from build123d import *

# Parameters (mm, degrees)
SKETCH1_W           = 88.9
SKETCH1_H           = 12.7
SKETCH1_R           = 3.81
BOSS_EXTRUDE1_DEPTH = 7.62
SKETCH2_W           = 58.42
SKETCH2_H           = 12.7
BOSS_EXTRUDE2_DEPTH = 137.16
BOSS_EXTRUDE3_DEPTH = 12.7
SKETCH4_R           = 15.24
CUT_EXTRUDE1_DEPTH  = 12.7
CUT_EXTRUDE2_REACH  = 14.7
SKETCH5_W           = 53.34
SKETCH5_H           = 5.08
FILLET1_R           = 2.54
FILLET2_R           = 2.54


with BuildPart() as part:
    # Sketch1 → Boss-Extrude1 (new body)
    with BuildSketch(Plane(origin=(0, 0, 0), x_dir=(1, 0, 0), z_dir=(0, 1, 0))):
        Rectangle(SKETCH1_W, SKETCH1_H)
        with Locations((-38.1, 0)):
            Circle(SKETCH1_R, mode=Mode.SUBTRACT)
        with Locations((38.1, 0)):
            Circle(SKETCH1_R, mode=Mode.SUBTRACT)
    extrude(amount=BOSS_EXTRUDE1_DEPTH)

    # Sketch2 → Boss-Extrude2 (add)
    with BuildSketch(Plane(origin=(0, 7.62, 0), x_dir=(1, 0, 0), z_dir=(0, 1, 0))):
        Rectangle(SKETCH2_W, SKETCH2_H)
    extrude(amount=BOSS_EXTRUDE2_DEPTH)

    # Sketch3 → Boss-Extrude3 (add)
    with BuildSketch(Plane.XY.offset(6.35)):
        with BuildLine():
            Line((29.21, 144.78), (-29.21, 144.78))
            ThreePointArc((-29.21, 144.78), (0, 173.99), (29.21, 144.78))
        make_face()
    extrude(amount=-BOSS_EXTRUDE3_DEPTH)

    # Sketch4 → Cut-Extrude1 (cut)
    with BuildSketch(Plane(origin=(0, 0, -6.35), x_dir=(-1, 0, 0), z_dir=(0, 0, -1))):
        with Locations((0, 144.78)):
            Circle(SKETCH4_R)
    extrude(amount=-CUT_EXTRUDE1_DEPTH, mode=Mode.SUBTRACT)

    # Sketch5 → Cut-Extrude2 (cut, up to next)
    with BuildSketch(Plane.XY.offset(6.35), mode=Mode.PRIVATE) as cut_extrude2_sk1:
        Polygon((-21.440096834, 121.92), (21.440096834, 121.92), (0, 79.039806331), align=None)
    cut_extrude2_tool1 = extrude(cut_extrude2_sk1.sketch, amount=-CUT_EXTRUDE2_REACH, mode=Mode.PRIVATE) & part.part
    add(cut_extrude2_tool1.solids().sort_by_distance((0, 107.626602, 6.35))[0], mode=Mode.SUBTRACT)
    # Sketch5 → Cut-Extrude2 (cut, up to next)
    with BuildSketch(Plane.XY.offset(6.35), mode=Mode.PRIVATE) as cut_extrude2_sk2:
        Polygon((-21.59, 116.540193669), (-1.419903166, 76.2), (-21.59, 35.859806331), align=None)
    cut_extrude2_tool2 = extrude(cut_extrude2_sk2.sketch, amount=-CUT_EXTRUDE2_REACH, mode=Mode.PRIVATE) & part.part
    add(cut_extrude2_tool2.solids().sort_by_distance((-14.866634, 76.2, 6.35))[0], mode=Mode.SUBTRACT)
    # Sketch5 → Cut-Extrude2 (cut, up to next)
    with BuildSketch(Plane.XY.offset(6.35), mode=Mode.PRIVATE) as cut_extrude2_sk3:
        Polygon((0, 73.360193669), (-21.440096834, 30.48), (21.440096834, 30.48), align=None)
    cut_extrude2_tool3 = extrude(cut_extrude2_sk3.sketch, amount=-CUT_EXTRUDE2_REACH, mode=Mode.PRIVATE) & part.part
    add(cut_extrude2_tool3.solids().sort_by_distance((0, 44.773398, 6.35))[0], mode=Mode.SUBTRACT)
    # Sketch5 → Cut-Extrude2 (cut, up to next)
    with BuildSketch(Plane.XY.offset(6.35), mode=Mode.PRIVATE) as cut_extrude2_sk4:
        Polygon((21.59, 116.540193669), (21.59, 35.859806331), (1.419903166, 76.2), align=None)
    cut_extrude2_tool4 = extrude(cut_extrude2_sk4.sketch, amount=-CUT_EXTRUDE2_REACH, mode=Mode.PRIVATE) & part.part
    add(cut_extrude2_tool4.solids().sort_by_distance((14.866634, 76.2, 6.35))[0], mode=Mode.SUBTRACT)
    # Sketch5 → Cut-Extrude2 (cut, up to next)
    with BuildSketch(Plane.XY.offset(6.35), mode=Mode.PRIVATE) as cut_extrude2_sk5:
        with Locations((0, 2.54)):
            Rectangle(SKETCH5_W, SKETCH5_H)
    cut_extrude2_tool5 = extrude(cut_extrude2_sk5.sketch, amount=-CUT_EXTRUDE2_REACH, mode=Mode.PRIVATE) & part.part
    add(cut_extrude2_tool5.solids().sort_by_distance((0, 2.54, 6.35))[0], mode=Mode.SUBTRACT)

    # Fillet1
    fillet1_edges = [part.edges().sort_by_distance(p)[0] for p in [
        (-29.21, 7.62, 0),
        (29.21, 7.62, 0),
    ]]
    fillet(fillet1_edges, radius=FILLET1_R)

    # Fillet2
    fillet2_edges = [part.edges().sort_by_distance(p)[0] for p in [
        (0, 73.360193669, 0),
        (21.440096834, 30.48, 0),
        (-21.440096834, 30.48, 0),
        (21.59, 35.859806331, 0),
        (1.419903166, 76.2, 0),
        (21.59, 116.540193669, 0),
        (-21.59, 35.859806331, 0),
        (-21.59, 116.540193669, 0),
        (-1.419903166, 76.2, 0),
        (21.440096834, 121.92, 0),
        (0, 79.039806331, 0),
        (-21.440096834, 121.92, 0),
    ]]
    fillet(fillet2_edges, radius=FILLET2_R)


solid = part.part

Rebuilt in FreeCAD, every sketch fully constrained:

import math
import FreeCAD as App
import Part
import Sketcher
Q = App.Units.Quantity


def edges_at(feature, points):
    """Names of the edges that pass closest to the given points."""
    edges = feature.Shape.Edges
    near = lambda p: min(range(len(edges)), key=lambda i: edges[i].distToShape(Part.Vertex(*p))[0])
    return sorted({f"Edge{near(p) + 1}" for p in points})

doc = App.newDocument("Part")
params = doc.addObject("Spreadsheet::Sheet", "Params")
for row, (alias, value) in enumerate([
    ("sketch1_diameter", "0.3 in"),
    ("sketch1_width", "3.5 in"),
    ("sketch1_height", "0.5 in"),
    ("pad1_length", "0.3 in"),
    ("sketch2_width", "2.3 in"),
    ("sketch2_height", "0.5 in"),
    ("pad2_length", "5.4 in"),
    ("sketch3_radius", "1.15 in"),
    ("pad3_length", "0.5 in"),
    ("sketch4_diameter", "1.2 in"),
    ("pocket1_length", "0.5 in"),
    ("sketch9_width", "2.1 in"),
    ("sketch9_height", "0.2 in"),
    ("fillet_radius", "0.1 in"),
    ("fillet2_radius", "0.1 in"),
], start=1):
    params.set(f"A{row}", alias)
    params.set(f"B{row}", "=" + value)
    params.setAlias(f"B{row}", alias)

body = doc.addObject("PartDesign::Body", "Body")

sketch1 = doc.addObject("Sketcher::SketchObject", "Sketch")
body.addObject(sketch1)
sketch1.AttachmentSupport = (doc.XZ_Plane, [""])
sketch1.MapMode = "FlatFace"
sketch1.addGeometry(Part.LineSegment(App.Vector(-44.45, -6.35, 0), App.Vector(-44.45, 6.35, 0)), False)
sketch1.addGeometry(Part.LineSegment(App.Vector(-44.45, 6.35, 0), App.Vector(44.45, 6.35, 0)), False)
sketch1.addGeometry(Part.LineSegment(App.Vector(44.45, 6.35, 0), App.Vector(44.45, -6.35, 0)), False)
sketch1.addGeometry(Part.LineSegment(App.Vector(44.45, -6.35, 0), App.Vector(-44.45, -6.35, 0)), False)
sketch1.addGeometry(Part.Circle(App.Vector(-38.1, 0, 0), App.Vector(0, 0, 1), 3.81), False)
sketch1.addGeometry(Part.Circle(App.Vector(38.1, 0, 0), App.Vector(0, 0, 1), 3.81), False)
sketch1.addConstraint(Sketcher.Constraint("Coincident", 0, 2, 1, 1))
sketch1.addConstraint(Sketcher.Constraint("Coincident", 1, 2, 2, 1))
sketch1.addConstraint(Sketcher.Constraint("Coincident", 2, 2, 3, 1))
sketch1.addConstraint(Sketcher.Constraint("Coincident", 3, 2, 0, 1))
sketch1.addConstraint(Sketcher.Constraint("Vertical", 0))
sketch1.addConstraint(Sketcher.Constraint("Horizontal", 1))
sketch1.addConstraint(Sketcher.Constraint("Vertical", 2))
sketch1.addConstraint(Sketcher.Constraint("Horizontal", 3))
sketch1.addConstraint(Sketcher.Constraint("Equal", 4, 5))
sketch1.addConstraint(Sketcher.Constraint("Symmetric", 4, 3, 5, 3, -1, 1))
sketch1.addConstraint(Sketcher.Constraint("Symmetric", 0, 2, 2, 2, -1, 1))
sketch1.addConstraint(Sketcher.Constraint("PointOnObject", 4, 3, -1))
sketch1.addConstraint(Sketcher.Constraint("Diameter", 4, Q("0.3 in")))
sketch1.addConstraint(Sketcher.Constraint("DistanceX", 1, 1, 1, 2, Q("3.5 in")))
sketch1.addConstraint(Sketcher.Constraint("DistanceY", 0, 1, 0, 2, Q("0.5 in")))
sketch1.addConstraint(Sketcher.Constraint("DistanceX", 4, 3, 5, 3, Q("3 in")))
sketch1.setExpression("Constraints[12]", "Params.sketch1_diameter")
sketch1.setExpression("Constraints[13]", "Params.sketch1_width")
sketch1.setExpression("Constraints[14]", "Params.sketch1_height")
pad1 = doc.addObject("PartDesign::Pad", "Pad")
body.addObject(pad1)
pad1.Profile = sketch1
pad1.setExpression("Length", "Params.pad1_length")
pad1.Reversed = True

sketch2 = doc.addObject("Sketcher::SketchObject", "Sketch001")
body.addObject(sketch2)
sketch2.AttachmentSupport = (doc.XZ_Plane, [""])
sketch2.MapMode = "FlatFace"
sketch2.AttachmentOffset = App.Placement(App.Vector(0, 0, -0.3 * 25.4), App.Rotation())
sketch2.addGeometry(Part.LineSegment(App.Vector(-29.21, -6.35, 0), App.Vector(-29.21, 6.35, 0)), False)
sketch2.addGeometry(Part.LineSegment(App.Vector(-29.21, 6.35, 0), App.Vector(29.21, 6.35, 0)), False)
sketch2.addGeometry(Part.LineSegment(App.Vector(29.21, 6.35, 0), App.Vector(29.21, -6.35, 0)), False)
sketch2.addGeometry(Part.LineSegment(App.Vector(29.21, -6.35, 0), App.Vector(-29.21, -6.35, 0)), False)
sketch2.addConstraint(Sketcher.Constraint("Coincident", 0, 2, 1, 1))
sketch2.addConstraint(Sketcher.Constraint("Coincident", 1, 2, 2, 1))
sketch2.addConstraint(Sketcher.Constraint("Coincident", 2, 2, 3, 1))
sketch2.addConstraint(Sketcher.Constraint("Coincident", 3, 2, 0, 1))
sketch2.addConstraint(Sketcher.Constraint("Vertical", 0))
sketch2.addConstraint(Sketcher.Constraint("Horizontal", 1))
sketch2.addConstraint(Sketcher.Constraint("Vertical", 2))
sketch2.addConstraint(Sketcher.Constraint("Horizontal", 3))
sketch2.addConstraint(Sketcher.Constraint("Symmetric", 0, 2, 2, 2, -1, 1))
sketch2.addConstraint(Sketcher.Constraint("DistanceX", 1, 1, 1, 2, Q("2.3 in")))
sketch2.addConstraint(Sketcher.Constraint("DistanceY", 0, 1, 0, 2, Q("0.5 in")))
sketch2.setExpression("Constraints[9]", "Params.sketch2_width")
sketch2.setExpression("Constraints[10]", "Params.sketch2_height")
pad2 = doc.addObject("PartDesign::Pad", "Pad001")
body.addObject(pad2)
pad2.Profile = sketch2
pad2.setExpression("Length", "Params.pad2_length")
pad2.Reversed = True

sketch3 = doc.addObject("Sketcher::SketchObject", "Sketch002")
body.addObject(sketch3)
sketch3.AttachmentSupport = (doc.XY_Plane, [""])
sketch3.MapMode = "FlatFace"
sketch3.AttachmentOffset = App.Placement(App.Vector(0, 0, 0.25 * 25.4), App.Rotation())
sketch3.addGeometry(Part.LineSegment(App.Vector(-29.21, 144.78, 0), App.Vector(29.21, 144.78, 0)), False)
sketch3.addGeometry(Part.ArcOfCircle(Part.Circle(App.Vector(0, 144.78, 0), App.Vector(0, 0, 1), 29.21), math.radians(0), math.radians(180)), False)
sketch3.addConstraint(Sketcher.Constraint("Coincident", 0, 1, 1, 2))
sketch3.addConstraint(Sketcher.Constraint("Coincident", 1, 1, 0, 2))
sketch3.addConstraint(Sketcher.Constraint("Horizontal", 0))
sketch3.addConstraint(Sketcher.Constraint("PointOnObject", 1, 3, -2))
sketch3.addConstraint(Sketcher.Constraint("Horizontal", 1, 3, 0, 1))
sketch3.addConstraint(Sketcher.Constraint("Radius", 1, Q("1.15 in")))
sketch3.addConstraint(Sketcher.Constraint("DistanceY", -1, 1, 1, 3, Q("5.7 in")))
sketch3.setExpression("Constraints[5]", "Params.sketch3_radius")
pad3 = doc.addObject("PartDesign::Pad", "Pad002")
body.addObject(pad3)
pad3.Profile = sketch3
pad3.setExpression("Length", "Params.pad3_length")
pad3.Reversed = True

sketch4 = doc.addObject("Sketcher::SketchObject", "Sketch003")
body.addObject(sketch4)
sketch4.AttachmentSupport = (doc.XY_Plane, [""])
sketch4.MapMode = "FlatFace"
sketch4.AttachmentOffset = App.Placement(App.Vector(0, 0, -0.25 * 25.4), App.Rotation())
sketch4.addGeometry(Part.Circle(App.Vector(0, 144.78, 0), App.Vector(0, 0, 1), 15.24), False)
sketch4.addConstraint(Sketcher.Constraint("PointOnObject", 0, 3, -2))
sketch4.addConstraint(Sketcher.Constraint("Diameter", 0, Q("1.2 in")))
sketch4.addConstraint(Sketcher.Constraint("DistanceY", -1, 1, 0, 3, Q("5.7 in")))
sketch4.setExpression("Constraints[1]", "Params.sketch4_diameter")
pocket1 = doc.addObject("PartDesign::Pocket", "Pocket")
body.addObject(pocket1)
pocket1.Profile = sketch4
pocket1.setExpression("Length", "Params.pocket1_length")
pocket1.Reversed = True

sketch5 = doc.addObject("Sketcher::SketchObject", "Sketch004")
body.addObject(sketch5)
sketch5.AttachmentSupport = (doc.XY_Plane, [""])
sketch5.MapMode = "FlatFace"
sketch5.AttachmentOffset = App.Placement(App.Vector(0, 0, 0.25 * 25.4), App.Rotation())
sketch5.addGeometry(Part.LineSegment(App.Vector(21.440097, 121.92, 0), App.Vector(-21.440097, 121.92, 0)), False)
sketch5.addGeometry(Part.LineSegment(App.Vector(-21.440097, 121.92, 0), App.Vector(0, 79.039806, 0)), False)
sketch5.addGeometry(Part.LineSegment(App.Vector(0, 79.039806, 0), App.Vector(21.440097, 121.92, 0)), False)
sketch5.addConstraint(Sketcher.Constraint("Coincident", 0, 2, 1, 1))
sketch5.addConstraint(Sketcher.Constraint("Coincident", 1, 2, 2, 1))
sketch5.addConstraint(Sketcher.Constraint("Coincident", 2, 2, 0, 1))
sketch5.addConstraint(Sketcher.Constraint("Horizontal", 0))
sketch5.addConstraint(Sketcher.Constraint("PointOnObject", 1, 2, -2))
sketch5.addConstraint(Sketcher.Constraint("Equal", 1, 2))
sketch5.addConstraint(Sketcher.Constraint("DistanceY", -1, 1, 0, 2, Q("4.8 in")))
sketch5.addConstraint(Sketcher.Constraint("DistanceX", 0, 2, 0, 1, 42.880194))
sketch5.addConstraint(Sketcher.Constraint("Distance", 1, 47.941514))
pocket2 = doc.addObject("PartDesign::Pocket", "Pocket001")
body.addObject(pocket2)
pocket2.Profile = sketch5
pocket2.Type = "UpToFirst"

sketch6 = doc.addObject("Sketcher::SketchObject", "Sketch005")
body.addObject(sketch6)
sketch6.AttachmentSupport = (doc.XY_Plane, [""])
sketch6.MapMode = "FlatFace"
sketch6.AttachmentOffset = App.Placement(App.Vector(0, 0, 0.25 * 25.4), App.Rotation())
sketch6.addGeometry(Part.LineSegment(App.Vector(-1.419903, 76.2, 0), App.Vector(-21.59, 116.540194, 0)), False)
sketch6.addGeometry(Part.LineSegment(App.Vector(-21.59, 116.540194, 0), App.Vector(-21.59, 35.859806, 0)), False)
sketch6.addGeometry(Part.LineSegment(App.Vector(-21.59, 35.859806, 0), App.Vector(-1.419903, 76.2, 0)), False)
sketch6.addConstraint(Sketcher.Constraint("Coincident", 0, 2, 1, 1))
sketch6.addConstraint(Sketcher.Constraint("Coincident", 1, 2, 2, 1))
sketch6.addConstraint(Sketcher.Constraint("Coincident", 2, 2, 0, 1))
sketch6.addConstraint(Sketcher.Constraint("Vertical", 1))
sketch6.addConstraint(Sketcher.Constraint("Equal", 0, 2))
sketch6.addConstraint(Sketcher.Constraint("DistanceY", -1, 1, 2, 2, Q("3 in")))
sketch6.addConstraint(Sketcher.Constraint("DistanceX", 0, 2, -1, 1, Q("0.85 in")))
sketch6.addConstraint(Sketcher.Constraint("DistanceY", 1, 2, 1, 1, 80.680387))
sketch6.addConstraint(Sketcher.Constraint("Distance", 0, 45.101708))
pocket3 = doc.addObject("PartDesign::Pocket", "Pocket002")
body.addObject(pocket3)
pocket3.Profile = sketch6
pocket3.Type = "UpToFirst"

sketch7 = doc.addObject("Sketcher::SketchObject", "Sketch006")
body.addObject(sketch7)
sketch7.AttachmentSupport = (doc.XY_Plane, [""])
sketch7.MapMode = "FlatFace"
sketch7.AttachmentOffset = App.Placement(App.Vector(0, 0, 0.25 * 25.4), App.Rotation())
sketch7.addGeometry(Part.LineSegment(App.Vector(0, 73.360194, 0), App.Vector(-21.440097, 30.48, 0)), False)
sketch7.addGeometry(Part.LineSegment(App.Vector(-21.440097, 30.48, 0), App.Vector(21.440097, 30.48, 0)), False)
sketch7.addGeometry(Part.LineSegment(App.Vector(21.440097, 30.48, 0), App.Vector(0, 73.360194, 0)), False)
sketch7.addConstraint(Sketcher.Constraint("Coincident", 0, 2, 1, 1))
sketch7.addConstraint(Sketcher.Constraint("Coincident", 1, 2, 2, 1))
sketch7.addConstraint(Sketcher.Constraint("Coincident", 2, 2, 0, 1))
sketch7.addConstraint(Sketcher.Constraint("Horizontal", 1))
sketch7.addConstraint(Sketcher.Constraint("PointOnObject", 2, 2, -2))
sketch7.addConstraint(Sketcher.Constraint("Equal", 0, 2))
sketch7.addConstraint(Sketcher.Constraint("DistanceY", -1, 1, 0, 2, Q("1.2 in")))
sketch7.addConstraint(Sketcher.Constraint("DistanceX", 1, 1, 1, 2, 42.880194))
sketch7.addConstraint(Sketcher.Constraint("Distance", 0, 47.941514))
pocket4 = doc.addObject("PartDesign::Pocket", "Pocket003")
body.addObject(pocket4)
pocket4.Profile = sketch7
pocket4.Type = "UpToFirst"

sketch8 = doc.addObject("Sketcher::SketchObject", "Sketch007")
body.addObject(sketch8)
sketch8.AttachmentSupport = (doc.XY_Plane, [""])
sketch8.MapMode = "FlatFace"
sketch8.AttachmentOffset = App.Placement(App.Vector(0, 0, 0.25 * 25.4), App.Rotation())
sketch8.addGeometry(Part.LineSegment(App.Vector(21.59, 35.859806, 0), App.Vector(21.59, 116.540194, 0)), False)
sketch8.addGeometry(Part.LineSegment(App.Vector(21.59, 116.540194, 0), App.Vector(1.419903, 76.2, 0)), False)
sketch8.addGeometry(Part.LineSegment(App.Vector(1.419903, 76.2, 0), App.Vector(21.59, 35.859806, 0)), False)
sketch8.addConstraint(Sketcher.Constraint("Coincident", 0, 2, 1, 1))
sketch8.addConstraint(Sketcher.Constraint("Coincident", 1, 2, 2, 1))
sketch8.addConstraint(Sketcher.Constraint("Coincident", 2, 2, 0, 1))
sketch8.addConstraint(Sketcher.Constraint("Vertical", 0))
sketch8.addConstraint(Sketcher.Constraint("Equal", 1, 2))
sketch8.addConstraint(Sketcher.Constraint("DistanceY", -1, 1, 1, 2, Q("3 in")))
sketch8.addConstraint(Sketcher.Constraint("DistanceX", -1, 1, 0, 2, Q("0.85 in")))
sketch8.addConstraint(Sketcher.Constraint("DistanceY", 0, 1, 0, 2, 80.680387))
sketch8.addConstraint(Sketcher.Constraint("Distance", 1, 45.101708))
pocket5 = doc.addObject("PartDesign::Pocket", "Pocket004")
body.addObject(pocket5)
pocket5.Profile = sketch8
pocket5.Type = "UpToFirst"

sketch9 = doc.addObject("Sketcher::SketchObject", "Sketch008")
body.addObject(sketch9)
sketch9.AttachmentSupport = (doc.XY_Plane, [""])
sketch9.MapMode = "FlatFace"
sketch9.AttachmentOffset = App.Placement(App.Vector(0, 0, 0.25 * 25.4), App.Rotation())
sketch9.addGeometry(Part.LineSegment(App.Vector(-26.67, 5.08, 0), App.Vector(-26.67, 0, 0)), False)
sketch9.addGeometry(Part.LineSegment(App.Vector(-26.67, 0, 0), App.Vector(26.67, 0, 0)), False)
sketch9.addGeometry(Part.LineSegment(App.Vector(26.67, 0, 0), App.Vector(26.67, 5.08, 0)), False)
sketch9.addGeometry(Part.LineSegment(App.Vector(26.67, 5.08, 0), App.Vector(-26.67, 5.08, 0)), False)
sketch9.addConstraint(Sketcher.Constraint("Coincident", 0, 2, 1, 1))
sketch9.addConstraint(Sketcher.Constraint("Coincident", 1, 2, 2, 1))
sketch9.addConstraint(Sketcher.Constraint("Coincident", 2, 2, 3, 1))
sketch9.addConstraint(Sketcher.Constraint("Coincident", 3, 2, 0, 1))
sketch9.addConstraint(Sketcher.Constraint("Vertical", 0))
sketch9.addConstraint(Sketcher.Constraint("Horizontal", 1))
sketch9.addConstraint(Sketcher.Constraint("Vertical", 2))
sketch9.addConstraint(Sketcher.Constraint("Horizontal", 3))
sketch9.addConstraint(Sketcher.Constraint("Symmetric", 0, 2, 1, 2, -1, 1))
sketch9.addConstraint(Sketcher.Constraint("DistanceX", 1, 1, 1, 2, Q("2.1 in")))
sketch9.addConstraint(Sketcher.Constraint("DistanceY", 0, 2, 0, 1, Q("0.2 in")))
sketch9.setExpression("Constraints[9]", "Params.sketch9_width")
sketch9.setExpression("Constraints[10]", "Params.sketch9_height")
pocket6 = doc.addObject("PartDesign::Pocket", "Pocket005")
body.addObject(pocket6)
pocket6.Profile = sketch9
pocket6.Type = "UpToFirst"
doc.recompute()

fillet = doc.addObject("PartDesign::Fillet", "Fillet")
body.addObject(fillet)
fillet.Base = (pocket6, edges_at(pocket6, [(-29.21, 7.62, 0), (29.21, 7.62, 0)]))
fillet.setExpression("Radius", "Params.fillet_radius")
doc.recompute()

fillet2 = doc.addObject("PartDesign::Fillet", "Fillet001")
body.addObject(fillet2)
fillet2.Base = (fillet, edges_at(fillet, [
    (0, 73.36, 0),
    (21.44, 30.48, 0),
    (-21.44, 30.48, 0),
    (21.59, 35.86, 0),
    (1.42, 76.2, 0),
    (21.59, 116.54, 0),
    (-21.59, 35.86, 0),
    (-21.59, 116.54, 0),
    (-1.42, 76.2, 0),
    (21.44, 121.92, 0),
    (0, 79.04, 0),
    (-21.44, 121.92, 0),
]))
fillet2.setExpression("Radius", "Params.fillet2_radius")

doc.recompute()
